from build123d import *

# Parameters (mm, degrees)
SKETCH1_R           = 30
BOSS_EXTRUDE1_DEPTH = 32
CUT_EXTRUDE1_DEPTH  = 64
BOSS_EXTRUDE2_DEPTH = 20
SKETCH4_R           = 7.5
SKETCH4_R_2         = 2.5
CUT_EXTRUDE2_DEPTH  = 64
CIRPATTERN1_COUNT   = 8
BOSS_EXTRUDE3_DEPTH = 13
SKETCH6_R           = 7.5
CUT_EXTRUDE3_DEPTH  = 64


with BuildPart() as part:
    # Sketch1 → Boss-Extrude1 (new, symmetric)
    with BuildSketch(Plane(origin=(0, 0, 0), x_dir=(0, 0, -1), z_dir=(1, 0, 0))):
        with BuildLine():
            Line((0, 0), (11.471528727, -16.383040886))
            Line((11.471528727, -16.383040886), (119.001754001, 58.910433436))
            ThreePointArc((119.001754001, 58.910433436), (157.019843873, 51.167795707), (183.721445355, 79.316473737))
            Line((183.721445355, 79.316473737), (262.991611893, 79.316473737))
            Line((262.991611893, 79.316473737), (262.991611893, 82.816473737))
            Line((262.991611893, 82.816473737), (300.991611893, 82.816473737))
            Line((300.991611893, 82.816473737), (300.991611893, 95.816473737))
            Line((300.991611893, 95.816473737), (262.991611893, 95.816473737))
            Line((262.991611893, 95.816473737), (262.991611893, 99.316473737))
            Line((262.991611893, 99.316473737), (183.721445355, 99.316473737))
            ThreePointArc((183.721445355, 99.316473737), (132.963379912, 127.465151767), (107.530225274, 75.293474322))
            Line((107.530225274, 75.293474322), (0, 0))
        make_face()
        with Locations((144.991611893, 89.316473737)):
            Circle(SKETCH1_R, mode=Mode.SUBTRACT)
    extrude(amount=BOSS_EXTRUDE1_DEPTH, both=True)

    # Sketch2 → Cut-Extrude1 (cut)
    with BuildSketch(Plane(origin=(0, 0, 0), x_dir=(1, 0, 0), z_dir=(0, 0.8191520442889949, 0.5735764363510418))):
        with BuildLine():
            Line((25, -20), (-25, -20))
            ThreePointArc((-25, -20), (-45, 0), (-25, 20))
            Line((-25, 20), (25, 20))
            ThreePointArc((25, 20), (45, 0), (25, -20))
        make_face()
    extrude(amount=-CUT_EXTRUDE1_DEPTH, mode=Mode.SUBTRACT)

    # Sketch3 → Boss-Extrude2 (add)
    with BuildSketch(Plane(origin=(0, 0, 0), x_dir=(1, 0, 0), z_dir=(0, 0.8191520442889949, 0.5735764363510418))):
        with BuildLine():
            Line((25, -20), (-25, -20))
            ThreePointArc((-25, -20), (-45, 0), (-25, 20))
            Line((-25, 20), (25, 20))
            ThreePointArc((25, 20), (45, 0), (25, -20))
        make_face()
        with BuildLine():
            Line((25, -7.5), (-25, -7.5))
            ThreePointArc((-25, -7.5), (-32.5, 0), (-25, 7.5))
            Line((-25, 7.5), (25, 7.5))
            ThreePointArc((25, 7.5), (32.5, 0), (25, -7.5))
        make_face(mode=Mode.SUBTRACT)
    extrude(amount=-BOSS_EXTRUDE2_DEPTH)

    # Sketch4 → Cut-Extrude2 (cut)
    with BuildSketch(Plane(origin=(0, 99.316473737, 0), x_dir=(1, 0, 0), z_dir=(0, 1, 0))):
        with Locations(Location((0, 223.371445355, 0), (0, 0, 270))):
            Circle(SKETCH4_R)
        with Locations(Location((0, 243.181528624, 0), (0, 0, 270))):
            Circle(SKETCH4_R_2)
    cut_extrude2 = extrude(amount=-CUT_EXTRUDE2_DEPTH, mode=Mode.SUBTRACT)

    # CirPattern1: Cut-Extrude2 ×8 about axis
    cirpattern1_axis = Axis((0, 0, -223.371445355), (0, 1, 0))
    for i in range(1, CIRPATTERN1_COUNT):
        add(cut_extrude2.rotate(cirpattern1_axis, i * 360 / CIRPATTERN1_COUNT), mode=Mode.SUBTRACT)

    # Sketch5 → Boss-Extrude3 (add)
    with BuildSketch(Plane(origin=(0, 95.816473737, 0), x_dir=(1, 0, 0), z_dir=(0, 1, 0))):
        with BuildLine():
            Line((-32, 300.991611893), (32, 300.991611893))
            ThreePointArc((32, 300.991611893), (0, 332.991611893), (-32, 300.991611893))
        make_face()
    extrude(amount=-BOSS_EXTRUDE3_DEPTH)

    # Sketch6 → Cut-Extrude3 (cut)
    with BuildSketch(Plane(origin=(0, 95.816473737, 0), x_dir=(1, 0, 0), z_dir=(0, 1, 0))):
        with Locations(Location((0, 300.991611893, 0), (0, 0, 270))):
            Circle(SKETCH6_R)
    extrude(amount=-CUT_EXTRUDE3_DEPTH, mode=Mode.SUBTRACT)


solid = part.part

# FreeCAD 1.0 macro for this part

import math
import FreeCAD as App
import Part
import Sketcher
Q = App.Units.Quantity

doc = App.newDocument("Part")
body = doc.addObject("PartDesign::Body", "Body")

sketch1 = body.newObject("Sketcher::SketchObject", "Sketch")
sketch1.AttachmentSupport = (doc.getObject("YZ_Plane"), [""])
sketch1.MapMode = "FlatFace"
sketch1.addGeometry(Part.LineSegment(App.Vector(0, 0, 0), App.Vector(-16.4, -11.5, 0)), False)
sketch1.addGeometry(Part.LineSegment(App.Vector(-16.4, -11.5, 0), App.Vector(58.9, -119, 0)), False)
sketch1.addGeometry(Part.ArcOfCircle(Part.Circle(App.Vector(89.3, -145, 0), App.Vector(0, 0, 1), 40), math.radians(139), math.radians(256)), False)
sketch1.addGeometry(Part.LineSegment(App.Vector(79.3, -183.7, 0), App.Vector(79.3, -263, 0)), False)
sketch1.addGeometry(Part.LineSegment(App.Vector(79.3, -263, 0), App.Vector(82.8, -263, 0)), False)
sketch1.addGeometry(Part.LineSegment(App.Vector(82.8, -263, 0), App.Vector(82.8, -301, 0)), False)
sketch1.addGeometry(Part.LineSegment(App.Vector(82.8, -301, 0), App.Vector(95.8, -301, 0)), False)
sketch1.addGeometry(Part.LineSegment(App.Vector(95.8, -301, 0), App.Vector(95.8, -263, 0)), False)
sketch1.addGeometry(Part.LineSegment(App.Vector(95.8, -263, 0), App.Vector(99.3, -263, 0)), False)
sketch1.addGeometry(Part.LineSegment(App.Vector(99.3, -263, 0), App.Vector(99.3, -183.7, 0)), False)
sketch1.addGeometry(Part.ArcOfCircle(Part.Circle(App.Vector(89.3, -145, 0), App.Vector(0, 0, 1), 40), math.radians(-76), math.radians(111)), False)
sketch1.addGeometry(Part.LineSegment(App.Vector(75.3, -107.5, 0), App.Vector(0, 0, 0)), False)
sketch1.addGeometry(Part.Circle(App.Vector(89.3, -145, 0), App.Vector(0, 0, 1), 30), False)
sketch1.addConstraint(Sketcher.Constraint("Coincident", 0, 2, 1, 1))
sketch1.addConstraint(Sketcher.Constraint("Coincident", 1, 2, 2, 1))
sketch1.addConstraint(Sketcher.Constraint("Coincident", 2, 2, 3, 1))
sketch1.addConstraint(Sketcher.Constraint("Coincident", 3, 2, 4, 1))
sketch1.addConstraint(Sketcher.Constraint("Coincident", 4, 2, 5, 1))
sketch1.addConstraint(Sketcher.Constraint("Coincident", 5, 2, 6, 1))
sketch1.addConstraint(Sketcher.Constraint("Coincident", 6, 2, 7, 1))
sketch1.addConstraint(Sketcher.Constraint("Coincident", 7, 2, 8, 1))
sketch1.addConstraint(Sketcher.Constraint("Coincident", 8, 2, 9, 1))
sketch1.addConstraint(Sketcher.Constraint("Coincident", 9, 2, 10, 1))
sketch1.addConstraint(Sketcher.Constraint("Coincident", 10, 2, 11, 1))
sketch1.addConstraint(Sketcher.Constraint("Coincident", 11, 2, 0, 1))
sketch1.addConstraint(Sketcher.Constraint("Vertical", 3))
sketch1.addConstraint(Sketcher.Constraint("Horizontal", 4))
sketch1.addConstraint(Sketcher.Constraint("Vertical", 5))
sketch1.addConstraint(Sketcher.Constraint("Horizontal", 6))
sketch1.addConstraint(Sketcher.Constraint("Vertical", 7))
sketch1.addConstraint(Sketcher.Constraint("Horizontal", 8))
sketch1.addConstraint(Sketcher.Constraint("Vertical", 9))
sketch1.addConstraint(Sketcher.Constraint("Coincident", 11, 2, -1, 1))
sketch1.addConstraint(Sketcher.Constraint("Coincident", 10, 3, 2, 3))
sketch1.addConstraint(Sketcher.Constraint("Coincident", 12, 3, 2, 3))
sketch1.addConstraint(Sketcher.Constraint("Equal", 2, 10))
sketch1.addConstraint(Sketcher.Constraint("Perpendicular", 0, 1))
sketch1.addConstraint(Sketcher.Constraint("Parallel", 1, 11))
sketch1.addConstraint(Sketcher.Constraint("Horizontal", 4, 2, 7, 2))
sketch1.addConstraint(Sketcher.Constraint("Horizontal", 2, 2, 9, 2))
sketch1.addConstraint(Sketcher.Constraint("Equal", 4, 8))
sketch1.addConstraint(Sketcher.Constraint("Equal", 1, 11))
sketch1.addConstraint(Sketcher.Constraint("Diameter", 12, Q("60 mm")))
sketch1.addConstraint(Sketcher.Constraint("Radius", 2, Q("40 mm")))
sketch1.addConstraint(Sketcher.Constraint("DistanceX", 6, 1, 6, 2, Q("13 mm")))
sketch1.addConstraint(Sketcher.Constraint("DistanceY", 5, 2, 5, 1, Q("38 mm")))
sketch1.addConstraint(Sketcher.Constraint("Angle", 0, Q("-145 deg")))
sketch1.addConstraint(Sketcher.Constraint("Distance", 0, Q("20 mm")))
sketch1.addConstraint(Sketcher.Constraint("DistanceX", 4, 1, 4, 2, Q("3.5 mm")))
sketch1.addConstraint(Sketcher.Constraint("DistanceY", 3, 2, 2, 3, Q("118 mm")))
sketch1.addConstraint(Sketcher.Constraint("DistanceY", 2, 3, -1, 1, Q("144.991612 mm")))
pad1 = body.newObject("PartDesign::Pad", "Pad")
pad1.Profile = sketch1
pad1.Length = 64
pad1.Midplane = True

sketch2 = body.newObject("Sketcher::SketchObject", "Sketch001")
sketch2.Placement = App.Placement(App.Vector(0, 0, 0), App.Rotation(App.Vector(1, 0, 0), App.Vector(0, 0.573576436, -0.819152044), App.Vector(0, 0.819152044, 0.573576436), "ZXY"))
sketch2.addGeometry(Part.LineSegment(App.Vector(-25, -20, 0), App.Vector(25, -20, 0)), False)
sketch2.addGeometry(Part.ArcOfCircle(Part.Circle(App.Vector(25, 0, 0), App.Vector(0, 0, 1), 20), math.radians(-90), math.radians(90)), False)
sketch2.addGeometry(Part.LineSegment(App.Vector(25, 20, 0), App.Vector(-25, 20, 0)), False)
sketch2.addGeometry(Part.ArcOfCircle(Part.Circle(App.Vector(-25, 0, 0), App.Vector(0, 0, 1), 20), math.radians(90), math.radians(270)), False)
sketch2.addConstraint(Sketcher.Constraint("Tangent", 0, 2, 1, 1))
sketch2.addConstraint(Sketcher.Constraint("Tangent", 1, 2, 2, 1))
sketch2.addConstraint(Sketcher.Constraint("Tangent", 2, 2, 3, 1))
sketch2.addConstraint(Sketcher.Constraint("Tangent", 3, 2, 0, 1))
sketch2.addConstraint(Sketcher.Constraint("Horizontal", 0))
sketch2.addConstraint(Sketcher.Constraint("Horizontal", 2))
sketch2.addConstraint(Sketcher.Constraint("Symmetric", 1, 3, 3, 3, -1, 1))
sketch2.addConstraint(Sketcher.Constraint("Radius", 1, Q("20 mm")))
sketch2.addConstraint(Sketcher.Constraint("DistanceX", 0, 1, 0, 2, Q("50 mm")))
pocket1 = body.newObject("PartDesign::Pocket", "Pocket")
pocket1.Profile = sketch2
pocket1.Length = 64

sketch3 = body.newObject("Sketcher::SketchObject", "Sketch002")
sketch3.Placement = App.Placement(App.Vector(0, 0, 0), App.Rotation(App.Vector(1, 0, 0), App.Vector(0, 0.573576436, -0.819152044), App.Vector(0, 0.819152044, 0.573576436), "ZXY"))
sketch3.addGeometry(Part.LineSegment(App.Vector(-25, -20, 0), App.Vector(25, -20, 0)), False)
sketch3.addGeometry(Part.ArcOfCircle(Part.Circle(App.Vector(25, 0, 0), App.Vector(0, 0, 1), 20), math.radians(-90), math.radians(90)), False)
sketch3.addGeometry(Part.LineSegment(App.Vector(25, 20, 0), App.Vector(-25, 20, 0)), False)
sketch3.addGeometry(Part.ArcOfCircle(Part.Circle(App.Vector(-25, 0, 0), App.Vector(0, 0, 1), 20), math.radians(90), math.radians(270)), False)
sketch3.addGeometry(Part.LineSegment(App.Vector(25, -7, 0), App.Vector(-25, -7, 0)), False)
sketch3.addGeometry(Part.ArcOfCircle(Part.Circle(App.Vector(-25, 0, 0), App.Vector(0, 0, 1), 8), math.radians(90), math.radians(270)), False)
sketch3.addGeometry(Part.LineSegment(App.Vector(-25, 7, 0), App.Vector(25, 7, 0)), False)
sketch3.addGeometry(Part.ArcOfCircle(Part.Circle(App.Vector(25, 0, 0), App.Vector(0, 0, 1), 8), math.radians(-90), math.radians(90)), False)
sketch3.addConstraint(Sketcher.Constraint("Tangent", 0, 2, 1, 1))
sketch3.addConstraint(Sketcher.Constraint("Tangent", 1, 2, 2, 1))
sketch3.addConstraint(Sketcher.Constraint("Tangent", 2, 2, 3, 1))
sketch3.addConstraint(Sketcher.Constraint("Tangent", 3, 2, 0, 1))
sketch3.addConstraint(Sketcher.Constraint("Tangent", 4, 2, 5, 2))
sketch3.addConstraint(Sketcher.Constraint("Tangent", 5, 1, 6, 1))
sketch3.addConstraint(Sketcher.Constraint("Tangent", 6, 2, 7, 2))
sketch3.addConstraint(Sketcher.Constraint("Tangent", 7, 1, 4, 1))
sketch3.addConstraint(Sketcher.Constraint("Horizontal", 0))
sketch3.addConstraint(Sketcher.Constraint("Horizontal", 2))
sketch3.addConstraint(Sketcher.Constraint("Horizontal", 4))
sketch3.addConstraint(Sketcher.Constraint("Horizontal", 6))
sketch3.addConstraint(Sketcher.Constraint("Coincident", 5, 3, 3, 3))
sketch3.addConstraint(Sketcher.Constraint("Symmetric", 1, 3, 3, 3, -1, 1))
sketch3.addConstraint(Sketcher.Constraint("Vertical", 7, 3, 0, 2))
sketch3.addConstraint(Sketcher.Constraint("Radius", 1, Q("20 mm")))
sketch3.addConstraint(Sketcher.Constraint("Radius", 5, Q("7.5 mm")))
sketch3.addConstraint(Sketcher.Constraint("DistanceX", 0, 1, 0, 2, Q("50 mm")))
pad2 = body.newObject("PartDesign::Pad", "Pad001")
pad2.Profile = sketch3
pad2.Length = 20
pad2.Reversed = True

sketch4 = body.newObject("Sketcher::SketchObject", "Sketch003")
sketch4.AttachmentSupport = (doc.getObject("XZ_Plane"), [""])
sketch4.MapMode = "FlatFace"
sketch4.AttachmentOffset = App.Placement(App.Vector(0, 0, -99.316474), App.Rotation())
sketch4.addGeometry(Part.Circle(App.Vector(0, -223.4, 0), App.Vector(0, 0, 1), 7.5), False)
sketch4.addGeometry(Part.Circle(App.Vector(0, -243.2, 0), App.Vector(0, 0, 1), 2.5), False)
sketch4.addConstraint(Sketcher.Constraint("PointOnObject", 0, 3, -2))
sketch4.addConstraint(Sketcher.Constraint("PointOnObject", 1, 3, -2))
sketch4.addConstraint(Sketcher.Constraint("Diameter", 0, Q("15 mm")))
sketch4.addConstraint(Sketcher.Constraint("Diameter", 1, Q("5 mm")))
sketch4.addConstraint(Sketcher.Constraint("DistanceY", 1, 3, -1, 1, Q("243.181529 mm")))
sketch4.addConstraint(Sketcher.Constraint("DistanceY", 0, 3, -1, 1, Q("223.371445 mm")))
pocket2 = body.newObject("PartDesign::Pocket", "Pocket001")
pocket2.Profile = sketch4
pocket2.Length = 64
pocket2.Reversed = True
doc.recompute()

datumline = body.newObject("PartDesign::Line", "DatumLine")
datumline.Placement = App.Placement(App.Vector(0, 0, -223.371445), App.Rotation(App.Vector(0, 0, 1), App.Vector(0, 1, 0)))
polarpattern = body.newObject("PartDesign::PolarPattern", "PolarPattern")
polarpattern.Originals = [pocket2]
polarpattern.Axis = (datumline, [""])
polarpattern.Angle = 360
polarpattern.Occurrences = 8
body.Tip = polarpattern

sketch5 = body.newObject("Sketcher::SketchObject", "Sketch004")
sketch5.AttachmentSupport = (doc.getObject("XZ_Plane"), [""])
sketch5.MapMode = "FlatFace"
sketch5.AttachmentOffset = App.Placement(App.Vector(0, 0, -95.816474), App.Rotation())
sketch5.addGeometry(Part.LineSegment(App.Vector(-32, -301, 0), App.Vector(32, -301, 0)), False)
sketch5.addGeometry(Part.ArcOfCircle(Part.Circle(App.Vector(0, -301, 0), App.Vector(0, 0, 1), 32), math.radians(180), math.radians(360)), False)
sketch5.addConstraint(Sketcher.Constraint("Coincident", 0, 1, 1, 1))
sketch5.addConstraint(Sketcher.Constraint("Coincident", 1, 2, 0, 2))
sketch5.addConstraint(Sketcher.Constraint("Horizontal", 0))
sketch5.addConstraint(Sketcher.Constraint("PointOnObject", 1, 3, -2))
sketch5.addConstraint(Sketcher.Constraint("Horizontal", 1, 3, 0, 1))
sketch5.addConstraint(Sketcher.Constraint("Radius", 1, Q("32 mm")))
sketch5.addConstraint(Sketcher.Constraint("DistanceY", 1, 3, -1, 1, Q("300.991612 mm")))
pad3 = body.newObject("PartDesign::Pad", "Pad002")
pad3.Profile = sketch5
pad3.Length = 13

sketch6 = body.newObject("Sketcher::SketchObject", "Sketch005")
sketch6.AttachmentSupport = (doc.getObject("XZ_Plane"), [""])
sketch6.MapMode = "FlatFace"
sketch6.AttachmentOffset = App.Placement(App.Vector(0, 0, -95.816474), App.Rotation())
sketch6.addGeometry(Part.Circle(App.Vector(0, -301, 0), App.Vector(0, 0, 1), 8), False)
sketch6.addConstraint(Sketcher.Constraint("PointOnObject", 0, 3, -2))
sketch6.addConstraint(Sketcher.Constraint("Diameter", 0, Q("15 mm")))
sketch6.addConstraint(Sketcher.Constraint("DistanceY", 0, 3, -1, 1, Q("300.991612 mm")))
pocket3 = body.newObject("PartDesign::Pocket", "Pocket002")
pocket3.Profile = sketch6
pocket3.Length = 64
pocket3.Reversed = True

doc.recompute()
